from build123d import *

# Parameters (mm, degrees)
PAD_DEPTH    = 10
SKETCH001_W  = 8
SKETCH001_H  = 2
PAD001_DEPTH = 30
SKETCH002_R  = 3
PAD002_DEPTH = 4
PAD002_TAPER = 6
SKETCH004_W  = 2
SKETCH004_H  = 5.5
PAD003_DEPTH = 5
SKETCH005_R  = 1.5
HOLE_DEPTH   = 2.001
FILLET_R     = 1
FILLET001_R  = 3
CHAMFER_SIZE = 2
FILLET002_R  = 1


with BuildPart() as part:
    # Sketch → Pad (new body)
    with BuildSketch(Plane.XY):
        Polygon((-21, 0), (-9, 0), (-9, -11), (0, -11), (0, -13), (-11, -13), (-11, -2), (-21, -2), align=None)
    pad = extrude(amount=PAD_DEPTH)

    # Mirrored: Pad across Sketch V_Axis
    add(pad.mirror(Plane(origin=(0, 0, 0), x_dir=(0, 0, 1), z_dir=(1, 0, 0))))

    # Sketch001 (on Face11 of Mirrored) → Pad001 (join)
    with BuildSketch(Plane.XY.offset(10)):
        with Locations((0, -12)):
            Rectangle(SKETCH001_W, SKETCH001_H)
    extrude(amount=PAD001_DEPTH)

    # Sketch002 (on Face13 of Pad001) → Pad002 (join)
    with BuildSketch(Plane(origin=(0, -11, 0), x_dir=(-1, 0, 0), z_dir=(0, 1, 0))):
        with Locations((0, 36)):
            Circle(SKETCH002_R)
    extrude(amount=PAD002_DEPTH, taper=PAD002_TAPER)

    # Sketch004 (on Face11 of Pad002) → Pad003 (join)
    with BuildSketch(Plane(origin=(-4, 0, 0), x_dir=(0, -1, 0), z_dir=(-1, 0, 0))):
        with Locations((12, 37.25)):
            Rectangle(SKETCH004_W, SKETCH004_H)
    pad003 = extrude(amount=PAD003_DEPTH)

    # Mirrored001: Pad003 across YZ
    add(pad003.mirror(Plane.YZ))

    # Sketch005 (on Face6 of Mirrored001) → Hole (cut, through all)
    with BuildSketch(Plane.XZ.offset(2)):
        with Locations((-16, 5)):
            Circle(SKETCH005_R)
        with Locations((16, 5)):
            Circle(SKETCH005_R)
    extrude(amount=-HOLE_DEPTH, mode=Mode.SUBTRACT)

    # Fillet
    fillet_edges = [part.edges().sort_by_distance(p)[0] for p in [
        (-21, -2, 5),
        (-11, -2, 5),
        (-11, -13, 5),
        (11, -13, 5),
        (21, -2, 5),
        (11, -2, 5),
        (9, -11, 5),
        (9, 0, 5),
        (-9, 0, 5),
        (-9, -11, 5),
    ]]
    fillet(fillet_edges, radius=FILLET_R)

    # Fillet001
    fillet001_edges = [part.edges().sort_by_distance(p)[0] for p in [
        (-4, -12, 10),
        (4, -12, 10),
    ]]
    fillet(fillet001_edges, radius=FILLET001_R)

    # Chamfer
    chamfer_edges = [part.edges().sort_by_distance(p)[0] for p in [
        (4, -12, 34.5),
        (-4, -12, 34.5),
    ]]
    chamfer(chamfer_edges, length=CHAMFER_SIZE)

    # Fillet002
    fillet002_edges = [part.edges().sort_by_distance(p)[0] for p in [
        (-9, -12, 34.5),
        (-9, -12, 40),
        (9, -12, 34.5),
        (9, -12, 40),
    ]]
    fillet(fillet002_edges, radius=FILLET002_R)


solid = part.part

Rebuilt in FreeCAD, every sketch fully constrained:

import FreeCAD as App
import Part
import Sketcher
from FreeCAD import Vector
Q = App.Units.Quantity


def edges_at(feature, points):
    """Names of the edges that pass closest to the given points."""
    edges = feature.Shape.Edges
    near = lambda p: min(range(len(edges)), key=lambda i: edges[i].distToShape(Part.Vertex(*p))[0])
    return sorted({f"Edge{near(p) + 1}" for p in points})

doc = App.newDocument("Part")
body = doc.addObject("PartDesign::Body", "Body")

# Sketch on XY plane
sketch1 = body.newObject("Sketcher::SketchObject", "Sketch")
sketch1.AttachmentSupport = (doc.getObject("XY_Plane"), [""])
sketch1.MapMode = "FlatFace"
sketch1.addGeometry(Part.LineSegment(Vector(-9, 0, 0), Vector(-21, 0, 0)), False)
sketch1.addGeometry(Part.LineSegment(Vector(-21, 0, 0), Vector(-21, -2, 0)), False)
sketch1.addGeometry(Part.LineSegment(Vector(-21, -2, 0), Vector(-11, -2, 0)), False)
sketch1.addGeometry(Part.LineSegment(Vector(-11, -2, 0), Vector(-11, -13, 0)), False)
sketch1.addGeometry(Part.LineSegment(Vector(-11, -13, 0), Vector(0, -13, 0)), False)
sketch1.addGeometry(Part.LineSegment(Vector(0, -13, 0), Vector(0, -11, 0)), False)
sketch1.addGeometry(Part.LineSegment(Vector(0, -11, 0), Vector(-9, -11, 0)), False)
sketch1.addGeometry(Part.LineSegment(Vector(-9, -11, 0), Vector(-9, 0, 0)), False)
sketch1.addConstraint(Sketcher.Constraint("Coincident", 0, 2, 1, 1))
sketch1.addConstraint(Sketcher.Constraint("Coincident", 1, 2, 2, 1))
sketch1.addConstraint(Sketcher.Constraint("Coincident", 2, 2, 3, 1))
sketch1.addConstraint(Sketcher.Constraint("Coincident", 3, 2, 4, 1))
sketch1.addConstraint(Sketcher.Constraint("Coincident", 4, 2, 5, 1))
sketch1.addConstraint(Sketcher.Constraint("Coincident", 5, 2, 6, 1))
sketch1.addConstraint(Sketcher.Constraint("Coincident", 6, 2, 7, 1))
sketch1.addConstraint(Sketcher.Constraint("Coincident", 7, 2, 0, 1))
sketch1.addConstraint(Sketcher.Constraint("Horizontal", 0))
sketch1.addConstraint(Sketcher.Constraint("Vertical", 1))
sketch1.addConstraint(Sketcher.Constraint("Horizontal", 2))
sketch1.addConstraint(Sketcher.Constraint("Vertical", 3))
sketch1.addConstraint(Sketcher.Constraint("Horizontal", 4))
sketch1.addConstraint(Sketcher.Constraint("Vertical", 5))
sketch1.addConstraint(Sketcher.Constraint("Horizontal", 6))
sketch1.addConstraint(Sketcher.Constraint("Vertical", 7))
sketch1.addConstraint(Sketcher.Constraint("PointOnObject", 0, 2, -1))
sketch1.addConstraint(Sketcher.Constraint("PointOnObject", 4, 2, -2))
sketch1.addConstraint(Sketcher.Constraint("Equal", 4, 3))
sketch1.addConstraint(Sketcher.Constraint("Equal", 1, 5))
sketch1.addConstraint(Sketcher.Constraint("DistanceX", 0, 2, 0, 1, Q("12 mm")))
sketch1.addConstraint(Sketcher.Constraint("DistanceX", 2, 1, 2, 2, Q("10 mm")))
sketch1.addConstraint(Sketcher.Constraint("DistanceX", 4, 1, 4, 2, Q("11 mm")))
sketch1.addConstraint(Sketcher.Constraint("DistanceY", 1, 2, 1, 1, Q("2 mm")))
pad1 = body.newObject("PartDesign::Pad", "Pad")
pad1.Profile = sketch1
pad1.Length = 10
doc.recompute()

mirrored = body.newObject("PartDesign::Mirrored", "Mirrored")
mirrored.Originals = [pad1]
mirrored.MirrorPlane = (doc.getObject("YZ_Plane"), [""])
body.Tip = mirrored

# Sketch on XY plane
sketch2 = body.newObject("Sketcher::SketchObject", "Sketch001")
sketch2.AttachmentSupport = (doc.getObject("XY_Plane"), [""])
sketch2.MapMode = "FlatFace"
sketch2.AttachmentOffset = App.Placement(Vector(0, 0, 10), App.Rotation())
sketch2.addGeometry(Part.LineSegment(Vector(-4, -11, 0), Vector(-4, -13, 0)), False)
sketch2.addGeometry(Part.LineSegment(Vector(-4, -13, 0), Vector(4, -13, 0)), False)
sketch2.addGeometry(Part.LineSegment(Vector(4, -13, 0), Vector(4, -11, 0)), False)
sketch2.addGeometry(Part.LineSegment(Vector(4, -11, 0), Vector(-4, -11, 0)), False)
sketch2.addConstraint(Sketcher.Constraint("Coincident", 0, 2, 1, 1))
sketch2.addConstraint(Sketcher.Constraint("Coincident", 1, 2, 2, 1))
sketch2.addConstraint(Sketcher.Constraint("Coincident", 2, 2, 3, 1))
sketch2.addConstraint(Sketcher.Constraint("Coincident", 3, 2, 0, 1))
sketch2.addConstraint(Sketcher.Constraint("Vertical", 0))
sketch2.addConstraint(Sketcher.Constraint("Horizontal", 1))
sketch2.addConstraint(Sketcher.Constraint("Vertical", 2))
sketch2.addConstraint(Sketcher.Constraint("Horizontal", 3))
sketch2.addConstraint(Sketcher.Constraint("DistanceX", 1, 1, 1, 2, Q("8 mm")))
sketch2.addConstraint(Sketcher.Constraint("DistanceY", 0, 2, 0, 1, Q("2 mm")))
sketch2.addConstraint(Sketcher.Constraint("DistanceX", 0, 2, -1, 1, Q("4 mm")))
sketch2.addConstraint(Sketcher.Constraint("DistanceY", 0, 2, -1, 1, Q("13 mm")))
pad2 = body.newObject("PartDesign::Pad", "Pad001")
pad2.Profile = sketch2
pad2.Length = 30

# Sketch on XZ plane
sketch3 = body.newObject("Sketcher::SketchObject", "Sketch002")
sketch3.AttachmentSupport = (doc.getObject("XZ_Plane"), [""])
sketch3.MapMode = "FlatFace"
sketch3.AttachmentOffset = App.Placement(Vector(0, 0, 11), App.Rotation())
sketch3.addGeometry(Part.Circle(Vector(0, 36, 0), Vector(0, 0, 1), 3), False)
sketch3.addConstraint(Sketcher.Constraint("PointOnObject", 0, 3, -2))
sketch3.addConstraint(Sketcher.Constraint("Diameter", 0, Q("6 mm")))
sketch3.addConstraint(Sketcher.Constraint("DistanceY", -1, 1, 0, 3, Q("36 mm")))
pad3 = body.newObject("PartDesign::Pad", "Pad002")
pad3.Profile = sketch3
pad3.Length = 4
pad3.Reversed = True
pad3.TaperAngle = -6

# Sketch on YZ plane
sketch4 = body.newObject("Sketcher::SketchObject", "Sketch003")
sketch4.AttachmentSupport = (doc.getObject("YZ_Plane"), [""])
sketch4.MapMode = "FlatFace"
sketch4.AttachmentOffset = App.Placement(Vector(0, 0, -4), App.Rotation())
sketch4.addGeometry(Part.LineSegment(Vector(-11, 40, 0), Vector(-11, 34.5, 0)), False)
sketch4.addGeometry(Part.LineSegment(Vector(-11, 34.5, 0), Vector(-13, 34.5, 0)), False)
sketch4.addGeometry(Part.LineSegment(Vector(-13, 34.5, 0), Vector(-13, 40, 0)), False)
sketch4.addGeometry(Part.LineSegment(Vector(-13, 40, 0), Vector(-11, 40, 0)), False)
sketch4.addConstraint(Sketcher.Constraint("Coincident", 0, 2, 1, 1))
sketch4.addConstraint(Sketcher.Constraint("Coincident", 1, 2, 2, 1))
sketch4.addConstraint(Sketcher.Constraint("Coincident", 2, 2, 3, 1))
sketch4.addConstraint(Sketcher.Constraint("Coincident", 3, 2, 0, 1))
sketch4.addConstraint(Sketcher.Constraint("Vertical", 0))
sketch4.addConstraint(Sketcher.Constraint("Horizontal", 1))
sketch4.addConstraint(Sketcher.Constraint("Vertical", 2))
sketch4.addConstraint(Sketcher.Constraint("Horizontal", 3))
sketch4.addConstraint(Sketcher.Constraint("DistanceX", 1, 2, 1, 1, Q("2 mm")))
sketch4.addConstraint(Sketcher.Constraint("DistanceY", 0, 2, 0, 1, Q("5.5 mm")))
sketch4.addConstraint(Sketcher.Constraint("DistanceX", 0, 2, -1, 1, Q("11 mm")))
sketch4.addConstraint(Sketcher.Constraint("DistanceY", -1, 1, 2, 2, Q("40 mm")))
pad4 = body.newObject("PartDesign::Pad", "Pad003")
pad4.Profile = sketch4
pad4.Length = 5
pad4.Reversed = True
doc.recompute()

mirrored2 = body.newObject("PartDesign::Mirrored", "Mirrored001")
mirrored2.Originals = [pad4]
mirrored2.MirrorPlane = (doc.getObject("YZ_Plane"), [""])
body.Tip = mirrored2

# Sketch on XZ plane
sketch5 = body.newObject("Sketcher::SketchObject", "Sketch004")
sketch5.AttachmentSupport = (doc.getObject("XZ_Plane"), [""])
sketch5.MapMode = "FlatFace"
sketch5.AttachmentOffset = App.Placement(Vector(0, 0, 2), App.Rotation())
sketch5.addGeometry(Part.Circle(Vector(-16, 5, 0), Vector(0, 0, 1), 1.5), False)
sketch5.addGeometry(Part.Circle(Vector(16, 5, 0), Vector(0, 0, 1), 1.5), False)
sketch5.addConstraint(Sketcher.Constraint("Equal", 0, 1))
sketch5.addConstraint(Sketcher.Constraint("Symmetric", 0, 3, 1, 3, -2))
sketch5.addConstraint(Sketcher.Constraint("Diameter", 0, Q("3 mm")))
sketch5.addConstraint(Sketcher.Constraint("DistanceX", 0, 3, -1, 1, Q("16 mm")))
sketch5.addConstraint(Sketcher.Constraint("DistanceY", -1, 1, 0, 3, Q("5 mm")))
pocket1 = body.newObject("PartDesign::Pocket", "Pocket")
pocket1.Profile = sketch5
pocket1.Type = "ThroughAll"
doc.recompute()

fillet = body.newObject("PartDesign::Fillet", "Fillet")
fillet.Base = (pocket1, edges_at(pocket1, [
    (-21, -2, 5),
    (-11, -2, 5),
    (-11, -13, 5),
    (11, -13, 5),
    (21, -2, 5),
    (11, -2, 5),
    (9, -11, 5),
    (9, 0, 5),
    (-9, 0, 5),
    (-9, -11, 5),
]))
fillet.Radius = 1
doc.recompute()

fillet2 = body.newObject("PartDesign::Fillet", "Fillet001")
fillet2.Base = (fillet, edges_at(fillet, [(-4, -12, 10), (4, -12, 10)]))
fillet2.Radius = 3
doc.recompute()

chamfer = body.newObject("PartDesign::Chamfer", "Chamfer")
chamfer.Base = (fillet2, edges_at(fillet2, [(4, -12, 34.5), (-4, -12, 34.5)]))
chamfer.Size = 2
doc.recompute()

fillet3 = body.newObject("PartDesign::Fillet", "Fillet002")
fillet3.Base = (chamfer, edges_at(chamfer, [
    (-9, -12, 34.5),
    (-9, -12, 40),
    (9, -12, 34.5),
    (9, -12, 40),
]))
fillet3.Radius = 1

doc.recompute()
